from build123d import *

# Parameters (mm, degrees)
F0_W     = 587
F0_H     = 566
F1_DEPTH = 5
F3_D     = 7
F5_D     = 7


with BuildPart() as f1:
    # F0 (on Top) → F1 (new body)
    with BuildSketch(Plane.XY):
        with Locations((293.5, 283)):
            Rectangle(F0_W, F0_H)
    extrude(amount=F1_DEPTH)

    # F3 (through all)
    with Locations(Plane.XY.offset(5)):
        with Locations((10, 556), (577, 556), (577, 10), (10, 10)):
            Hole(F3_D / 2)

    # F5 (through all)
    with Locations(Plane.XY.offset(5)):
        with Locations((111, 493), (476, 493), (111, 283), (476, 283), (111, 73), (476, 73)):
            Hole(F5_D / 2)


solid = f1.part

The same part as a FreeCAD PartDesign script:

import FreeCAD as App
import Part
import Sketcher
from FreeCAD import Vector

doc = App.newDocument("Part")
body = doc.addObject("PartDesign::Body", "Body")

sketch1 = body.newObject("Sketcher::SketchObject", "Sketch")
sketch1.AttachmentSupport = (doc.getObject("XY_Plane"), [""])
sketch1.MapMode = "FlatFace"
sketch1.addGeometry([
    Part.LineSegment(Vector(0, 566, 0), Vector(0, 0, 0)),
    Part.LineSegment(Vector(0, 0, 0), Vector(587, 0, 0)),
    Part.LineSegment(Vector(587, 0, 0), Vector(587, 566, 0)),
    Part.LineSegment(Vector(587, 566, 0), Vector(0, 566, 0)),
], False)
sketch1.addConstraint([
    Sketcher.Constraint("Coincident", 0, 2, 1, 1),
    Sketcher.Constraint("Coincident", 1, 2, 2, 1),
    Sketcher.Constraint("Coincident", 2, 2, 3, 1),
    Sketcher.Constraint("Coincident", 3, 2, 0, 1),
    Sketcher.Constraint("Vertical", 0),
    Sketcher.Constraint("Horizontal", 1),
    Sketcher.Constraint("Vertical", 2),
    Sketcher.Constraint("Horizontal", 3),
    Sketcher.Constraint("Coincident", 0, 2, -1, 1),
    Sketcher.Constraint("DistanceX", 1, 1, 1, 2, 587.0),
    Sketcher.Constraint("DistanceY", 0, 2, 0, 1, 566.0),
])
pad1 = body.newObject("PartDesign::Pad", "Pad")
pad1.Profile = sketch1
pad1.Length = 5

sketch2 = body.newObject("Sketcher::SketchObject", "Sketch001")
sketch2.AttachmentSupport = (doc.getObject("XY_Plane"), [""])
sketch2.MapMode = "FlatFace"
sketch2.AttachmentOffset = App.Placement(Vector(0, 0, 5), App.Rotation())
sketch2.addGeometry([
    Part.Circle(Vector(10, 556, 0), Vector(0, 0, 1), 3.5),
    Part.Circle(Vector(577, 556, 0), Vector(0, 0, 1), 3.5),
    Part.Circle(Vector(577, 10, 0), Vector(0, 0, 1), 3.5),
    Part.Circle(Vector(10, 10, 0), Vector(0, 0, 1), 3.5),
], False)
sketch2.addConstraint([
    Sketcher.Constraint("Equal", 0, 1),
    Sketcher.Constraint("Equal", 1, 2),
    Sketcher.Constraint("Equal", 2, 3),
    Sketcher.Constraint("Horizontal", 0, 3, 1, 3),
    Sketcher.Constraint("Horizontal", 2, 3, 3, 3),
    Sketcher.Constraint("Vertical", 1, 3, 2, 3),
    Sketcher.Constraint("Vertical", 0, 3, 3, 3),
    Sketcher.Constraint("Diameter", 0, 7.0),
    Sketcher.Constraint("DistanceX", -1, 1, 0, 3, 10.0),
    Sketcher.Constraint("DistanceY", -1, 1, 0, 3, 556.0),
    Sketcher.Constraint("DistanceX", -1, 1, 1, 3, 577.0),
    Sketcher.Constraint("DistanceY", -1, 1, 2, 3, 10.0),
])
doc.recompute()
hole = body.newObject("PartDesign::Hole", "Hole")
hole.Profile = sketch2
hole.ThreadType = "None"
hole.Diameter = 7
hole.DepthType = "ThroughAll"

sketch3 = body.newObject("Sketcher::SketchObject", "Sketch002")
sketch3.AttachmentSupport = (doc.getObject("XY_Plane"), [""])
sketch3.MapMode = "FlatFace"
sketch3.AttachmentOffset = App.Placement(Vector(0, 0, 5), App.Rotation())
sketch3.addGeometry([
    Part.Circle(Vector(111, 493, 0), Vector(0, 0, 1), 3.5),
    Part.Circle(Vector(476, 493, 0), Vector(0, 0, 1), 3.5),
    Part.Circle(Vector(111, 283, 0), Vector(0, 0, 1), 3.5),
    Part.Circle(Vector(476, 283, 0), Vector(0, 0, 1), 3.5),
    Part.Circle(Vector(111, 73, 0), Vector(0, 0, 1), 3.5),
    Part.Circle(Vector(476, 73, 0), Vector(0, 0, 1), 3.5),
], False)
sketch3.addConstraint([
    Sketcher.Constraint("Equal", 0, 1),
    Sketcher.Constraint("Equal", 1, 2),
    Sketcher.Constraint("Equal", 2, 3),
    Sketcher.Constraint("Equal", 3, 4),
    Sketcher.Constraint("Equal", 4, 5),
    Sketcher.Constraint("Horizontal", 0, 3, 1, 3),
    Sketcher.Constraint("Horizontal", 2, 3, 3, 3),
    Sketcher.Constraint("Horizontal", 4, 3, 5, 3),
    Sketcher.Constraint("Vertical", 0, 3, 2, 3),
    Sketcher.Constraint("Vertical", 1, 3, 3, 3),
    Sketcher.Constraint("Vertical", 2, 3, 4, 3),
    Sketcher.Constraint("Vertical", 3, 3, 5, 3),
    Sketcher.Constraint("Diameter", 0, 7.0),
    Sketcher.Constraint("DistanceX", -1, 1, 0, 3, 111.0),
    Sketcher.Constraint("DistanceY", -1, 1, 0, 3, 493.0),
    Sketcher.Constraint("DistanceX", -1, 1, 1, 3, 476.0),
    Sketcher.Constraint("DistanceY", -1, 1, 2, 3, 283.0),
    Sketcher.Constraint("DistanceY", -1, 1, 4, 3, 73.0),
])
doc.recompute()
hole2 = body.newObject("PartDesign::Hole", "Hole001")
hole2.Profile = sketch3
hole2.ThreadType = "None"
hole2.Diameter = 7
hole2.DepthType = "ThroughAll"

doc.recompute()
